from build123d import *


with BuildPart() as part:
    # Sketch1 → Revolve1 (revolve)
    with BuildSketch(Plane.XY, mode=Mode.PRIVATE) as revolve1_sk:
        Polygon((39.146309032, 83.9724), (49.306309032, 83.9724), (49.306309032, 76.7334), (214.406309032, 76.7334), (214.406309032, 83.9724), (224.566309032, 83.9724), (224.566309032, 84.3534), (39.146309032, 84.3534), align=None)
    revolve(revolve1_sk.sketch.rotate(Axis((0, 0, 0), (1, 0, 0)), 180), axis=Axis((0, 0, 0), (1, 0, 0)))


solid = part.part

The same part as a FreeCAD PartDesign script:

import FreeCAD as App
import Part
import Sketcher
from FreeCAD import Vector
Q = App.Units.Quantity

doc = App.newDocument("Part")
body = doc.addObject("PartDesign::Body", "Body")

# Sketch on XY plane
sketch1 = body.newObject("Sketcher::SketchObject", "Sketch")
sketch1.AttachmentSupport = (doc.getObject("XY_Plane"), [""])
sketch1.MapMode = "FlatFace"
sketch1.addGeometry([
    Part.LineSegment(Vector(39.15, 83.97, 0), Vector(49.31, 83.97, 0)),  # 0
    Part.LineSegment(Vector(49.31, 83.97, 0), Vector(49.31, 76.73, 0)),  # 1
    Part.LineSegment(Vector(49.31, 76.73, 0), Vector(214.41, 76.73, 0)),  # 2
    Part.LineSegment(Vector(214.41, 76.73, 0), Vector(214.41, 83.97, 0)),  # 3
    Part.LineSegment(Vector(214.41, 83.97, 0), Vector(224.57, 83.97, 0)),  # 4
    Part.LineSegment(Vector(224.57, 83.97, 0), Vector(224.57, 84.35, 0)),  # 5
    Part.LineSegment(Vector(224.57, 84.35, 0), Vector(39.15, 84.35, 0)),  # 6
    Part.LineSegment(Vector(39.15, 84.35, 0), Vector(39.15, 83.97, 0)),  # 7
], False)
sketch1.addConstraint([
    Sketcher.Constraint("Coincident", 0, 2, 1, 1),
    Sketcher.Constraint("Coincident", 1, 2, 2, 1),
    Sketcher.Constraint("Coincident", 2, 2, 3, 1),
    Sketcher.Constraint("Coincident", 3, 2, 4, 1),
    Sketcher.Constraint("Coincident", 4, 2, 5, 1),
    Sketcher.Constraint("Coincident", 5, 2, 6, 1),
    Sketcher.Constraint("Coincident", 6, 2, 7, 1),
    Sketcher.Constraint("Coincident", 7, 2, 0, 1),
    Sketcher.Constraint("Horizontal", 0),
    Sketcher.Constraint("Vertical", 1),
    Sketcher.Constraint("Horizontal", 2),
    Sketcher.Constraint("Vertical", 3),
    Sketcher.Constraint("Horizontal", 4),
    Sketcher.Constraint("Vertical", 5),
    Sketcher.Constraint("Horizontal", 6),
    Sketcher.Constraint("Vertical", 7),
    Sketcher.Constraint("Horizontal", 0, 2, 3, 2),
    Sketcher.Constraint("Equal", 0, 4),
    Sketcher.Constraint("DistanceX", 0, 1, 0, 2, Q("0.4 in")),
    Sketcher.Constraint("DistanceX", 2, 1, 2, 2, Q("6.5 in")),
    Sketcher.Constraint("DistanceY", 2, 2, 5, 2, Q("0.3 in")),
    Sketcher.Constraint("DistanceY", 1, 2, 1, 1, Q("0.285 in")),
    Sketcher.Constraint("DistanceY", -1, 1, 0, 2, Q("3.306 in")),
    Sketcher.Constraint("DistanceX", -1, 1, 0, 2, Q("49.306309 mm")),
])
revolution = body.newObject("PartDesign::Revolution", "Revolution")
revolution.Profile = sketch1
revolution.ReferenceAxis = (sketch1, ["H_Axis"])
revolution.Angle = 360

doc.recompute()
